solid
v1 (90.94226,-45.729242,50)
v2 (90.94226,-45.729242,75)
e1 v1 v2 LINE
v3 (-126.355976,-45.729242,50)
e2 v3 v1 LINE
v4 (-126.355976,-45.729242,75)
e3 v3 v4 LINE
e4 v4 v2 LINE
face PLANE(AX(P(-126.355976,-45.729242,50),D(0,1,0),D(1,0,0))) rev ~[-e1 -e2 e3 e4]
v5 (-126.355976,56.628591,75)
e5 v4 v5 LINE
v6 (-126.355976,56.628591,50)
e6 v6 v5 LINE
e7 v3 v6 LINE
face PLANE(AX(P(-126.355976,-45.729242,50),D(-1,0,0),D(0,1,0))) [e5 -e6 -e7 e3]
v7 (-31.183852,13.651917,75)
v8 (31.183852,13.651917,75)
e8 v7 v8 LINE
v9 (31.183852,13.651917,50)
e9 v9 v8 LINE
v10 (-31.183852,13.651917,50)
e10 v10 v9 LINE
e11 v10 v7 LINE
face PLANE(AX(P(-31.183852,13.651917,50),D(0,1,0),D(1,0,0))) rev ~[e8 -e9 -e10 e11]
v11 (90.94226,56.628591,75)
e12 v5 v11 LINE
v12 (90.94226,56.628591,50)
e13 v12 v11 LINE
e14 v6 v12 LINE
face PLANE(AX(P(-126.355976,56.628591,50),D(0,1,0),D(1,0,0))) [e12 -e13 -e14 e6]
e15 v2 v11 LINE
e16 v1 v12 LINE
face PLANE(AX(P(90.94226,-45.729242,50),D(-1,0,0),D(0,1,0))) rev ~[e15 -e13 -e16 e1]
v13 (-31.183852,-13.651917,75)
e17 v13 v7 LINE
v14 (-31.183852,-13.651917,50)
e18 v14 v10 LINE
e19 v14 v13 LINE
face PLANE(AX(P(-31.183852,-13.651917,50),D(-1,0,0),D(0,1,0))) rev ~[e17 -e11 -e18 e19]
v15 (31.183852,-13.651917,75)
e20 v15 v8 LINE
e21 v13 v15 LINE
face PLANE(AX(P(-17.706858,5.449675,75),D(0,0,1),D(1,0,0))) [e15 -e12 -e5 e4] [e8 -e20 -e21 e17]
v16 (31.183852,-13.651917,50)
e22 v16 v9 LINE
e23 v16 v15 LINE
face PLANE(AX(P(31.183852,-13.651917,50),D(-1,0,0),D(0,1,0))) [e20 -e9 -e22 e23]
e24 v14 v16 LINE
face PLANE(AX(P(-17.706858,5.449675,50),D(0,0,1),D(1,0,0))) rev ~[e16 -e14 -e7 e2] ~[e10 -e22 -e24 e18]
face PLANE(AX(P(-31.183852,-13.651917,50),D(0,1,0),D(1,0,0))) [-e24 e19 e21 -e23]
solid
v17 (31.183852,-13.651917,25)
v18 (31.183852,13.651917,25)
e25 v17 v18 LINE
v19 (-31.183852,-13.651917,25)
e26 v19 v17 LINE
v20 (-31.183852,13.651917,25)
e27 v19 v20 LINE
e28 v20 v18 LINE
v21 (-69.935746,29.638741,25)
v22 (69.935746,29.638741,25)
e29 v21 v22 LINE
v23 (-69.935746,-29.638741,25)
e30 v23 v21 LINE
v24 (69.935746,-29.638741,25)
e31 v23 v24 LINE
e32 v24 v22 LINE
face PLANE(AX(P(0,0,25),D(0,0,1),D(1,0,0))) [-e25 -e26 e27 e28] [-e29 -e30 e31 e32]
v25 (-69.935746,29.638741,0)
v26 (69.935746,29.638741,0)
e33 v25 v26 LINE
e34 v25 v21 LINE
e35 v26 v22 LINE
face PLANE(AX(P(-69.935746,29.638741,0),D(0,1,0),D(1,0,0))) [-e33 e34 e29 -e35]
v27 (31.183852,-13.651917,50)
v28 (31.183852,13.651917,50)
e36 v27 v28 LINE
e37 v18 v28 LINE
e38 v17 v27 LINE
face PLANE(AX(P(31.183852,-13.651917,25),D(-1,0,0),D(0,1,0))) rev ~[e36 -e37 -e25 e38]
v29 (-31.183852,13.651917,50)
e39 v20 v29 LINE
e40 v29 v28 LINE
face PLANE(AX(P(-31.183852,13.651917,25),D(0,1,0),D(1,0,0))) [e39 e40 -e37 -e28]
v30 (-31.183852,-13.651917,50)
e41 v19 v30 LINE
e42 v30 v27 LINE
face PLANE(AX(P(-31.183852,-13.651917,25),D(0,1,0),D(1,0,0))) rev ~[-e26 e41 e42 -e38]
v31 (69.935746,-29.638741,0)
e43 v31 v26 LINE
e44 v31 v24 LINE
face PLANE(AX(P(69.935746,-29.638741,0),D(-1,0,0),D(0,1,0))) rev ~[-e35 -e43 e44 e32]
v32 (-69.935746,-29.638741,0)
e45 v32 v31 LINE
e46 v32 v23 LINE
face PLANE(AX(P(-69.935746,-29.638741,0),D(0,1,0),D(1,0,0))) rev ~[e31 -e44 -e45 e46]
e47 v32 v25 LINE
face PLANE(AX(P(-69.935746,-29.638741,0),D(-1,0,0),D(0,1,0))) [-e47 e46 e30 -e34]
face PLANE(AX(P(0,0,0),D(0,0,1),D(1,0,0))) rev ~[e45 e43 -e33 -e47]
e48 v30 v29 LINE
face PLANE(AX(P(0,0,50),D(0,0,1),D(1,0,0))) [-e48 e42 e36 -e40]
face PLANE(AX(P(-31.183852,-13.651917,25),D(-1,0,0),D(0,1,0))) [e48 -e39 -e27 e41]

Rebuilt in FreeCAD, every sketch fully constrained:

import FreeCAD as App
import Part
import Sketcher

doc = App.newDocument("Part")
body = doc.addObject("PartDesign::Body", "Body")

# Sketch on XY plane
sketch1 = body.newObject("Sketcher::SketchObject", "Sketch")
sketch1.AttachmentSupport = (doc.getObject("XY_Plane"), [""])
sketch1.MapMode = "FlatFace"
sketch1.addGeometry([
    Part.LineSegment(App.Vector(-70, 30, 0), App.Vector(-70, -30, 0)),
    Part.LineSegment(App.Vector(-70, -30, 0), App.Vector(70, -30, 0)),
    Part.LineSegment(App.Vector(70, -30, 0), App.Vector(70, 30, 0)),
    Part.LineSegment(App.Vector(70, 30, 0), App.Vector(-70, 30, 0)),
], False)
sketch1.addConstraint([
    Sketcher.Constraint("Coincident", 0, 2, 1, 1),
    Sketcher.Constraint("Coincident", 1, 2, 2, 1),
    Sketcher.Constraint("Coincident", 2, 2, 3, 1),
    Sketcher.Constraint("Coincident", 3, 2, 0, 1),
    Sketcher.Constraint("Vertical", 0),
    Sketcher.Constraint("Horizontal", 1),
    Sketcher.Constraint("Vertical", 2),
    Sketcher.Constraint("Horizontal", 3),
    Sketcher.Constraint("Symmetric", 0, 2, 2, 2, -1, 1),
    Sketcher.Constraint("DistanceX", 1, 1, 1, 2, 139.871492),
    Sketcher.Constraint("DistanceY", 0, 2, 0, 1, 59.277482),
])
pad1 = body.newObject("PartDesign::Pad", "Pad")
pad1.Profile = sketch1
pad1.Length = 25

# Sketch on XY plane
sketch2 = body.newObject("Sketcher::SketchObject", "Sketch001")
sketch2.AttachmentSupport = (doc.getObject("XY_Plane"), [""])
sketch2.MapMode = "FlatFace"
sketch2.AttachmentOffset = App.Placement(App.Vector(0, 0, 25), App.Rotation())
sketch2.addGeometry([
    Part.LineSegment(App.Vector(-31, 14, 0), App.Vector(-31, -14, 0)),
    Part.LineSegment(App.Vector(-31, -14, 0), App.Vector(31, -14, 0)),
    Part.LineSegment(App.Vector(31, -14, 0), App.Vector(31, 14, 0)),
    Part.LineSegment(App.Vector(31, 14, 0), App.Vector(-31, 14, 0)),
], False)
sketch2.addConstraint([
    Sketcher.Constraint("Coincident", 0, 2, 1, 1),
    Sketcher.Constraint("Coincident", 1, 2, 2, 1),
    Sketcher.Constraint("Coincident", 2, 2, 3, 1),
    Sketcher.Constraint("Coincident", 3, 2, 0, 1),
    Sketcher.Constraint("Vertical", 0),
    Sketcher.Constraint("Horizontal", 1),
    Sketcher.Constraint("Vertical", 2),
    Sketcher.Constraint("Horizontal", 3),
    Sketcher.Constraint("Symmetric", 0, 2, 2, 2, -1, 1),
    Sketcher.Constraint("DistanceX", 1, 1, 1, 2, 62.367704),
    Sketcher.Constraint("DistanceY", 0, 2, 0, 1, 27.303834),
])
pad2 = body.newObject("PartDesign::Pad", "Pad001")
pad2.Profile = sketch2
pad2.Length = 25
body2 = doc.addObject("PartDesign::Body", "Body001")

# Sketch on XY plane
sketch3 = body2.newObject("Sketcher::SketchObject", "Sketch002")
sketch3.AttachmentSupport = (doc.getObject("XY_Plane001"), [""])
sketch3.MapMode = "FlatFace"
sketch3.AttachmentOffset = App.Placement(App.Vector(0, 0, 50), App.Rotation())
sketch3.addGeometry([
    Part.LineSegment(App.Vector(-126, 57, 0), App.Vector(-126, -46, 0)),  # 0
    Part.LineSegment(App.Vector(-126, -46, 0), App.Vector(91, -46, 0)),  # 1
    Part.LineSegment(App.Vector(91, -46, 0), App.Vector(91, 57, 0)),  # 2
    Part.LineSegment(App.Vector(91, 57, 0), App.Vector(-126, 57, 0)),  # 3
    Part.LineSegment(App.Vector(31, -14, 0), App.Vector(-31, -14, 0)),  # 4
    Part.LineSegment(App.Vector(-31, -14, 0), App.Vector(-31, 14, 0)),  # 5
    Part.LineSegment(App.Vector(-31, 14, 0), App.Vector(31, 14, 0)),  # 6
    Part.LineSegment(App.Vector(31, 14, 0), App.Vector(31, -14, 0)),  # 7
], False)
sketch3.addConstraint([
    Sketcher.Constraint("Coincident", 0, 2, 1, 1),
    Sketcher.Constraint("Coincident", 1, 2, 2, 1),
    Sketcher.Constraint("Coincident", 2, 2, 3, 1),
    Sketcher.Constraint("Coincident", 3, 2, 0, 1),
    Sketcher.Constraint("Coincident", 4, 2, 5, 1),
    Sketcher.Constraint("Coincident", 5, 2, 6, 1),
    Sketcher.Constraint("Coincident", 6, 2, 7, 1),
    Sketcher.Constraint("Coincident", 7, 2, 4, 1),
    Sketcher.Constraint("Vertical", 0),
    Sketcher.Constraint("Horizontal", 1),
    Sketcher.Constraint("Vertical", 2),
    Sketcher.Constraint("Horizontal", 3),
    Sketcher.Constraint("Horizontal", 4),
    Sketcher.Constraint("Vertical", 5),
    Sketcher.Constraint("Horizontal", 6),
    Sketcher.Constraint("Vertical", 7),
    Sketcher.Constraint("Symmetric", 4, 2, 6, 2, -1, 1),
    Sketcher.Constraint("DistanceX", 1, 1, 1, 2, 217.298236),
    Sketcher.Constraint("DistanceX", 4, 2, 4, 1, 62.367704),
    Sketcher.Constraint("DistanceY", 0, 2, 0, 1, 102.357833),
    Sketcher.Constraint("DistanceY", 5, 1, 5, 2, 27.303834),
    Sketcher.Constraint("DistanceY", 0, 2, -1, 1, 45.729242),
    Sketcher.Constraint("DistanceX", -1, 1, 1, 2, 90.94226),
])
pad3 = body2.newObject("PartDesign::Pad", "Pad002")
pad3.Profile = sketch3
pad3.Length = 25

doc.recompute()
